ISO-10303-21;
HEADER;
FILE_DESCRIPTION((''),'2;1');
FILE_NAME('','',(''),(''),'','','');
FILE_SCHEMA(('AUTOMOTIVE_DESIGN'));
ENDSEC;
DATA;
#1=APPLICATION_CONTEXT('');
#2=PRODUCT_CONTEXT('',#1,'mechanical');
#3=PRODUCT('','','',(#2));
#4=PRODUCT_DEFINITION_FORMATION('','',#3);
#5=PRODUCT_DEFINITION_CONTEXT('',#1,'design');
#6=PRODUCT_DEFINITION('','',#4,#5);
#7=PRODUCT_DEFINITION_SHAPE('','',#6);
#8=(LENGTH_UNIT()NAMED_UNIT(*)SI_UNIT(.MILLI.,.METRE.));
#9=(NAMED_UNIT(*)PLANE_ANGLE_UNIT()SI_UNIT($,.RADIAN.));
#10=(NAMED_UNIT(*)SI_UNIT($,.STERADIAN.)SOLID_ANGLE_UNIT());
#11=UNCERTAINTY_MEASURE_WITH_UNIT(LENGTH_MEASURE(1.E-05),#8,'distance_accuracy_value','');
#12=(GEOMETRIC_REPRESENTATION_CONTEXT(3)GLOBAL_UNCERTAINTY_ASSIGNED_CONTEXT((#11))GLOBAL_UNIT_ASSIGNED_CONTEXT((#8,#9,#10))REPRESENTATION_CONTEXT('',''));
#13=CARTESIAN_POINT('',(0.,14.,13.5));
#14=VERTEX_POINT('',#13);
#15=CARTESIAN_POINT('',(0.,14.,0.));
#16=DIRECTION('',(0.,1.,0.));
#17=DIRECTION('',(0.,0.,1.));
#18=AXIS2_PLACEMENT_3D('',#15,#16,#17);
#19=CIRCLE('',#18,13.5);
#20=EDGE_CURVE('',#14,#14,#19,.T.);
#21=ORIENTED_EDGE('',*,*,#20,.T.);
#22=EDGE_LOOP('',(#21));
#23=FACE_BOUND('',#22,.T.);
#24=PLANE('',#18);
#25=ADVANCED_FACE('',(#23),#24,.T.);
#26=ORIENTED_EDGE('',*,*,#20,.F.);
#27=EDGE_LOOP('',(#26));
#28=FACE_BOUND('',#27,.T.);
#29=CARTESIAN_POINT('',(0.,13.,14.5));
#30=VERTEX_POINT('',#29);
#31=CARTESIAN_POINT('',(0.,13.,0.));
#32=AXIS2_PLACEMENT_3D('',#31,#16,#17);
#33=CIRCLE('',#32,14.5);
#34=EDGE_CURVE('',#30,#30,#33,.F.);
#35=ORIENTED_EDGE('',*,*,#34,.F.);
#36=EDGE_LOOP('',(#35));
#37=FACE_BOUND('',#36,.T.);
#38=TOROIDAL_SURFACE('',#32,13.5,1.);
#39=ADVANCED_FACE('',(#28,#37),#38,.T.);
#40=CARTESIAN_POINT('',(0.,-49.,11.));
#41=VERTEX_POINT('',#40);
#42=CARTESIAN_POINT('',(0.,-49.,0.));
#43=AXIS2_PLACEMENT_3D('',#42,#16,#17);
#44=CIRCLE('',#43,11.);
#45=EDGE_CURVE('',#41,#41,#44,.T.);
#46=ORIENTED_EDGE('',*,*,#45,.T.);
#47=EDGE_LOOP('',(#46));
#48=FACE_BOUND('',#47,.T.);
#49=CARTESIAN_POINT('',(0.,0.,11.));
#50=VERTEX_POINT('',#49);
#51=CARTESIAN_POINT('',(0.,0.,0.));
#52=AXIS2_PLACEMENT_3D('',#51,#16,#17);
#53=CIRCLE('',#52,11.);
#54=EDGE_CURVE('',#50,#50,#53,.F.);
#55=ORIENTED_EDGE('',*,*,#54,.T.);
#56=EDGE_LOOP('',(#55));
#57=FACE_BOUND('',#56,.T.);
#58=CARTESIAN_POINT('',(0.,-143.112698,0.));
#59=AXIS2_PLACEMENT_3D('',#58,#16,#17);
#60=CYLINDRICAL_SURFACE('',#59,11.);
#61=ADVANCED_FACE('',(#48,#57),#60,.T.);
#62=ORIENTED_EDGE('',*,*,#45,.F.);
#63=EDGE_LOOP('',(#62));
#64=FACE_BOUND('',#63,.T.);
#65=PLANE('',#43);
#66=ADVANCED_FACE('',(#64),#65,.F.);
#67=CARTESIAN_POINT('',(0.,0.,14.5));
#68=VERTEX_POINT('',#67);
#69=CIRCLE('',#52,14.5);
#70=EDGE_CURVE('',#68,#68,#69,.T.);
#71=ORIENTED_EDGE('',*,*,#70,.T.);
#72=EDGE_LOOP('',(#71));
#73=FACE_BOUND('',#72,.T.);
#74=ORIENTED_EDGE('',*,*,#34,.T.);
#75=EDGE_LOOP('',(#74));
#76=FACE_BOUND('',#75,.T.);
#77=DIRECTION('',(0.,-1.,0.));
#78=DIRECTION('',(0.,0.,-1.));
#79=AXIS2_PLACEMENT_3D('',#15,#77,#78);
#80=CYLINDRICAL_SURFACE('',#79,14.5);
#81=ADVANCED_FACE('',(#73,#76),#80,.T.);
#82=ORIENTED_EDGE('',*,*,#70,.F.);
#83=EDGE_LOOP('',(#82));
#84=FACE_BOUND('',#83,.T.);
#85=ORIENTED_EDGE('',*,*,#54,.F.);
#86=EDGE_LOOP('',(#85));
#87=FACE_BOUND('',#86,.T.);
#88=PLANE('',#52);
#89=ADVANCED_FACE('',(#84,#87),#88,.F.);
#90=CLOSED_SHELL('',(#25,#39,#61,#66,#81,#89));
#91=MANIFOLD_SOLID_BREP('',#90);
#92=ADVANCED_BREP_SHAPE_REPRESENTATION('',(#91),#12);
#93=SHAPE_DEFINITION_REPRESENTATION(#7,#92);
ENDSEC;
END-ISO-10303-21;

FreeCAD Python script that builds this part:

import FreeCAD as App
import Part
import Sketcher
from FreeCAD import Vector


def edges_at(feature, points):
    """Names of the edges that pass closest to the given points."""
    edges = feature.Shape.Edges
    near = lambda p: min(range(len(edges)), key=lambda i: edges[i].distToShape(Part.Vertex(*p))[0])
    return sorted({f"Edge{near(p) + 1}" for p in points})

doc = App.newDocument("Part")
body = doc.addObject("PartDesign::Body", "Body")

# Sketch on XZ plane
sketch1 = doc.addObject("Sketcher::SketchObject", "Sketch")
body.addObject(sketch1)
sketch1.AttachmentSupport = (doc.XZ_Plane, [""])
sketch1.MapMode = "FlatFace"
sketch1.addGeometry(Part.Circle(Vector(0, 0, 0), Vector(0, 0, 1), 14), False)
sketch1.addConstraint([
    Sketcher.Constraint("Coincident", 0, 3, -1, 1),
    Sketcher.Constraint("Diameter", 0, 29.0),
])
pad1 = doc.addObject("PartDesign::Pad", "Pad")
body.addObject(pad1)
pad1.Profile = sketch1
pad1.Length = 14
pad1.Reversed = True

# Sketch on XZ plane
sketch2 = doc.addObject("Sketcher::SketchObject", "Sketch001")
body.addObject(sketch2)
sketch2.AttachmentSupport = (doc.XZ_Plane, [""])
sketch2.MapMode = "FlatFace"
sketch2.addGeometry(Part.Circle(Vector(0, 0, 0), Vector(0, 0, 1), 11), False)
sketch2.addConstraint([
    Sketcher.Constraint("Coincident", 0, 3, -1, 1),
    Sketcher.Constraint("Diameter", 0, 22.0),
])
pad2 = doc.addObject("PartDesign::Pad", "Pad001")
body.addObject(pad2)
pad2.Profile = sketch2
pad2.Length = 49
doc.recompute()

fillet = doc.addObject("PartDesign::Fillet", "Fillet")
body.addObject(fillet)
fillet.Base = (pad2, edges_at(pad2, [(0, 14, -14.5)]))
fillet.Radius = 1

doc.recompute()
